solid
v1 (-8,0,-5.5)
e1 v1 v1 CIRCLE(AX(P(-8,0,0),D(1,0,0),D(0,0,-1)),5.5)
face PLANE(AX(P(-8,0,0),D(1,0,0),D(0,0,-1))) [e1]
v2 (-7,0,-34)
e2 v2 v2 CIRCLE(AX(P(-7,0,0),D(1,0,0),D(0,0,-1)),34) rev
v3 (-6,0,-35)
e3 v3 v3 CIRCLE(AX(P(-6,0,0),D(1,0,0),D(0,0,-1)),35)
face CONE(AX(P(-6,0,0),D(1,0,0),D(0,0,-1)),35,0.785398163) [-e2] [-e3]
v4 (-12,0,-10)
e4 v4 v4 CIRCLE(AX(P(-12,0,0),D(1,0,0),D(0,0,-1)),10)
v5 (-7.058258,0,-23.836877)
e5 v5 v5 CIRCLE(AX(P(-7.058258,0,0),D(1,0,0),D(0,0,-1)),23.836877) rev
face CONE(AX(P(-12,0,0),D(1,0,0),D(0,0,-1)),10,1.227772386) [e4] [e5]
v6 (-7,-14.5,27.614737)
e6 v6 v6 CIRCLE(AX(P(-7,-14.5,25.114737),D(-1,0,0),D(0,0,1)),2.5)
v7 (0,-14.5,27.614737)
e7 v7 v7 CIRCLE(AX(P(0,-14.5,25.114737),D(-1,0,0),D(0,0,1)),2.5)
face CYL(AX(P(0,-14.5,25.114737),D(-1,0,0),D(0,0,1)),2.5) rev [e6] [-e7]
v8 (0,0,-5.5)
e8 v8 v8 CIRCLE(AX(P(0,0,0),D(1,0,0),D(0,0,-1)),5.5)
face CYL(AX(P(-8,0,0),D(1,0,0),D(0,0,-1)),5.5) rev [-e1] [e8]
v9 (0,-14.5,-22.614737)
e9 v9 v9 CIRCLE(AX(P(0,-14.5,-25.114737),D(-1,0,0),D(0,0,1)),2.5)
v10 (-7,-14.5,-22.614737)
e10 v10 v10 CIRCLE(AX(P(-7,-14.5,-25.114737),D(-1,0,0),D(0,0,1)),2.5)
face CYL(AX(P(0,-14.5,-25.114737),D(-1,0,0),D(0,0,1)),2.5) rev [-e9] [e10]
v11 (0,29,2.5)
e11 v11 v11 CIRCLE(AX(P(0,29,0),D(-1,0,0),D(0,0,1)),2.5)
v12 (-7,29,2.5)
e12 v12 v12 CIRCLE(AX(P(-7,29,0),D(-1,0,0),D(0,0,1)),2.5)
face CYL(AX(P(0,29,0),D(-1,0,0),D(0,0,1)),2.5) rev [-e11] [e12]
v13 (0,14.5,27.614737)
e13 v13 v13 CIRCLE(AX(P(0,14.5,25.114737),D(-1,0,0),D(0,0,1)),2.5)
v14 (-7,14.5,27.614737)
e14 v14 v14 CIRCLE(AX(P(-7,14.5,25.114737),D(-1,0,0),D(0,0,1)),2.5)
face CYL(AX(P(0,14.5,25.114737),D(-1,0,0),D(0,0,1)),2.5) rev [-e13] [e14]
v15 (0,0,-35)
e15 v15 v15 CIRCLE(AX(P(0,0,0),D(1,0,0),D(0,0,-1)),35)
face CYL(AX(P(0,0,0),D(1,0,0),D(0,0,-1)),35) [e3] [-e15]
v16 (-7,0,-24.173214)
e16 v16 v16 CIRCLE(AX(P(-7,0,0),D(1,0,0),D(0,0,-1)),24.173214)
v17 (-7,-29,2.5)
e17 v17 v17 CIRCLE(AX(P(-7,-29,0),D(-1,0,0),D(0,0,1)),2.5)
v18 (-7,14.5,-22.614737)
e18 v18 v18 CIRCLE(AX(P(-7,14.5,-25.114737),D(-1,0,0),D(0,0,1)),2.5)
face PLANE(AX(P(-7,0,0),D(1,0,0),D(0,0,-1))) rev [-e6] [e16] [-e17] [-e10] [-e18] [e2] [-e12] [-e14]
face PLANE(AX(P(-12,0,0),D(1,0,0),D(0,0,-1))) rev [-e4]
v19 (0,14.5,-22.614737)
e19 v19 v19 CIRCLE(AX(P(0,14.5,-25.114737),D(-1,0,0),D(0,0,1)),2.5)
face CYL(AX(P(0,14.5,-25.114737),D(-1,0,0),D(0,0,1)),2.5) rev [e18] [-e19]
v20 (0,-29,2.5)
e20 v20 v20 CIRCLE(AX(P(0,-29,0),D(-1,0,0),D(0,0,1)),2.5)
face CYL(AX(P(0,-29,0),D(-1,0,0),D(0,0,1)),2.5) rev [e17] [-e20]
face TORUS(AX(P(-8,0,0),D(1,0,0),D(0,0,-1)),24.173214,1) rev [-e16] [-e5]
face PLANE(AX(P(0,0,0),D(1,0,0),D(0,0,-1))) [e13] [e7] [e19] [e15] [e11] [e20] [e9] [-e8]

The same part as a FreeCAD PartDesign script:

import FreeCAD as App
import Part
import Sketcher


def edges_at(feature, points):
    """Names of the edges that pass closest to the given points."""
    edges = feature.Shape.Edges
    near = lambda p: min(range(len(edges)), key=lambda i: edges[i].distToShape(Part.Vertex(*p))[0])
    return sorted({f"Edge{near(p) + 1}" for p in points})

doc = App.newDocument("Part")
body = doc.addObject("PartDesign::Body", "Body")

# Sketch on XZ plane
sketch1 = doc.addObject("Sketcher::SketchObject", "Sketch")
body.addObject(sketch1)
sketch1.AttachmentSupport = (doc.XZ_Plane, [""])
sketch1.MapMode = "FlatFace"
sketch1.addGeometry([
    Part.LineSegment(App.Vector(-12, 0, 0), App.Vector(-12, 10, 0)),  # 0
    Part.LineSegment(App.Vector(-12, 10, 0), App.Vector(-7, 24, 0)),  # 1
    Part.LineSegment(App.Vector(-7, 24, 0), App.Vector(-7, 35, 0)),  # 2
    Part.LineSegment(App.Vector(-7, 35, 0), App.Vector(0, 35, 0)),  # 3
    Part.LineSegment(App.Vector(0, 35, 0), App.Vector(0, 0, 0)),  # 4
    Part.LineSegment(App.Vector(0, 0, 0), App.Vector(-12, 0, 0)),  # 5
], False)
sketch1.addConstraint([
    Sketcher.Constraint("Coincident", 0, 2, 1, 1),
    Sketcher.Constraint("Coincident", 1, 2, 2, 1),
    Sketcher.Constraint("Coincident", 2, 2, 3, 1),
    Sketcher.Constraint("Coincident", 3, 2, 4, 1),
    Sketcher.Constraint("Coincident", 4, 2, 5, 1),
    Sketcher.Constraint("Coincident", 5, 2, 0, 1),
    Sketcher.Constraint("Vertical", 0),
    Sketcher.Constraint("Vertical", 2),
    Sketcher.Constraint("Horizontal", 3),
    Sketcher.Constraint("Vertical", 4),
    Sketcher.Constraint("Horizontal", 5),
    Sketcher.Constraint("Coincident", 4, 2, -1, 1),
    Sketcher.Constraint("DistanceX", 3, 1, 3, 2, 7.0),
    Sketcher.Constraint("DistanceX", 5, 2, 5, 1, 12.0),
    Sketcher.Constraint("DistanceY", 0, 1, 0, 2, 10.0),
    Sketcher.Constraint("DistanceY", 2, 1, 2, 2, 11.0),
    Sketcher.Constraint("DistanceY", 4, 2, 4, 1, 35.0),
])
revolution = doc.addObject("PartDesign::Revolution", "Revolution")
body.addObject(revolution)
revolution.Profile = sketch1
revolution.ReferenceAxis = (sketch1, ["H_Axis"])
revolution.Angle = 360

# Sketch on YZ plane
sketch2 = doc.addObject("Sketcher::SketchObject", "Sketch001")
body.addObject(sketch2)
sketch2.AttachmentSupport = (doc.YZ_Plane, [""])
sketch2.MapMode = "FlatFace"
sketch2.AttachmentOffset = App.Placement(App.Vector(0, 0, -7), App.Rotation())
sketch2.addGeometry([
    Part.Circle(App.Vector(29, 0, 0), App.Vector(0, 0, 1), 2.5),  # 0
    Part.Circle(App.Vector(14.5, -25.114737, 0), App.Vector(0, 0, 1), 2.5),  # 1
    Part.Circle(App.Vector(-14.5, -25.114737, 0), App.Vector(0, 0, 1), 2.5),  # 2
    Part.Circle(App.Vector(-29, 0, 0), App.Vector(0, 0, 1), 2.5),  # 3
    Part.Circle(App.Vector(-14.5, 25.114737, 0), App.Vector(0, 0, 1), 2.5),  # 4
    Part.Circle(App.Vector(14.5, 25.114737, 0), App.Vector(0, 0, 1), 2.5),  # 5
], False)
sketch2.addConstraint([
    Sketcher.Constraint("Equal", 0, 1),
    Sketcher.Constraint("Equal", 1, 2),
    Sketcher.Constraint("Equal", 2, 3),
    Sketcher.Constraint("Equal", 3, 4),
    Sketcher.Constraint("Equal", 4, 5),
    Sketcher.Constraint("Symmetric", 0, 3, 3, 3, -1, 1),
    Sketcher.Constraint("Symmetric", 1, 3, 4, 3, -1, 1),
    Sketcher.Constraint("Symmetric", 2, 3, 5, 3, -1, 1),
    Sketcher.Constraint("Symmetric", 1, 3, 2, 3, -2),
    Sketcher.Constraint("PointOnObject", 0, 3, -1),
    Sketcher.Constraint("Diameter", 0, 5.0),
    Sketcher.Constraint("DistanceX", -1, 1, 0, 3, 29.0),
    Sketcher.Constraint("DistanceX", 2, 3, 1, 3, 29.0),
    Sketcher.Constraint("DistanceY", 1, 3, -1, 1, 25.114737),
])
pocket1 = doc.addObject("PartDesign::Pocket", "Pocket")
body.addObject(pocket1)
pocket1.Profile = sketch2
pocket1.Type = "ThroughAll"
pocket1.Reversed = True

# Sketch on YZ plane
sketch3 = doc.addObject("Sketcher::SketchObject", "Sketch002")
body.addObject(sketch3)
sketch3.AttachmentSupport = (doc.YZ_Plane, [""])
sketch3.MapMode = "FlatFace"
sketch3.addGeometry(Part.Circle(App.Vector(0, 0, 0), App.Vector(0, 0, 1), 5.5), False)
sketch3.addConstraint([
    Sketcher.Constraint("Coincident", 0, 3, -1, 1),
    Sketcher.Constraint("Diameter", 0, 11.0),
])
pocket2 = doc.addObject("PartDesign::Pocket", "Pocket001")
body.addObject(pocket2)
pocket2.Profile = sketch3
pocket2.Length = 8
doc.recompute()

fillet = doc.addObject("PartDesign::Fillet", "Fillet")
body.addObject(fillet)
fillet.Base = (pocket2, edges_at(pocket2, [(-7, 0, 24)]))
fillet.Radius = 1
doc.recompute()

chamfer = doc.addObject("PartDesign::Chamfer", "Chamfer")
body.addObject(chamfer)
chamfer.Base = (fillet, edges_at(fillet, [(-7, 0, 35)]))
chamfer.Size = 1

doc.recompute()
